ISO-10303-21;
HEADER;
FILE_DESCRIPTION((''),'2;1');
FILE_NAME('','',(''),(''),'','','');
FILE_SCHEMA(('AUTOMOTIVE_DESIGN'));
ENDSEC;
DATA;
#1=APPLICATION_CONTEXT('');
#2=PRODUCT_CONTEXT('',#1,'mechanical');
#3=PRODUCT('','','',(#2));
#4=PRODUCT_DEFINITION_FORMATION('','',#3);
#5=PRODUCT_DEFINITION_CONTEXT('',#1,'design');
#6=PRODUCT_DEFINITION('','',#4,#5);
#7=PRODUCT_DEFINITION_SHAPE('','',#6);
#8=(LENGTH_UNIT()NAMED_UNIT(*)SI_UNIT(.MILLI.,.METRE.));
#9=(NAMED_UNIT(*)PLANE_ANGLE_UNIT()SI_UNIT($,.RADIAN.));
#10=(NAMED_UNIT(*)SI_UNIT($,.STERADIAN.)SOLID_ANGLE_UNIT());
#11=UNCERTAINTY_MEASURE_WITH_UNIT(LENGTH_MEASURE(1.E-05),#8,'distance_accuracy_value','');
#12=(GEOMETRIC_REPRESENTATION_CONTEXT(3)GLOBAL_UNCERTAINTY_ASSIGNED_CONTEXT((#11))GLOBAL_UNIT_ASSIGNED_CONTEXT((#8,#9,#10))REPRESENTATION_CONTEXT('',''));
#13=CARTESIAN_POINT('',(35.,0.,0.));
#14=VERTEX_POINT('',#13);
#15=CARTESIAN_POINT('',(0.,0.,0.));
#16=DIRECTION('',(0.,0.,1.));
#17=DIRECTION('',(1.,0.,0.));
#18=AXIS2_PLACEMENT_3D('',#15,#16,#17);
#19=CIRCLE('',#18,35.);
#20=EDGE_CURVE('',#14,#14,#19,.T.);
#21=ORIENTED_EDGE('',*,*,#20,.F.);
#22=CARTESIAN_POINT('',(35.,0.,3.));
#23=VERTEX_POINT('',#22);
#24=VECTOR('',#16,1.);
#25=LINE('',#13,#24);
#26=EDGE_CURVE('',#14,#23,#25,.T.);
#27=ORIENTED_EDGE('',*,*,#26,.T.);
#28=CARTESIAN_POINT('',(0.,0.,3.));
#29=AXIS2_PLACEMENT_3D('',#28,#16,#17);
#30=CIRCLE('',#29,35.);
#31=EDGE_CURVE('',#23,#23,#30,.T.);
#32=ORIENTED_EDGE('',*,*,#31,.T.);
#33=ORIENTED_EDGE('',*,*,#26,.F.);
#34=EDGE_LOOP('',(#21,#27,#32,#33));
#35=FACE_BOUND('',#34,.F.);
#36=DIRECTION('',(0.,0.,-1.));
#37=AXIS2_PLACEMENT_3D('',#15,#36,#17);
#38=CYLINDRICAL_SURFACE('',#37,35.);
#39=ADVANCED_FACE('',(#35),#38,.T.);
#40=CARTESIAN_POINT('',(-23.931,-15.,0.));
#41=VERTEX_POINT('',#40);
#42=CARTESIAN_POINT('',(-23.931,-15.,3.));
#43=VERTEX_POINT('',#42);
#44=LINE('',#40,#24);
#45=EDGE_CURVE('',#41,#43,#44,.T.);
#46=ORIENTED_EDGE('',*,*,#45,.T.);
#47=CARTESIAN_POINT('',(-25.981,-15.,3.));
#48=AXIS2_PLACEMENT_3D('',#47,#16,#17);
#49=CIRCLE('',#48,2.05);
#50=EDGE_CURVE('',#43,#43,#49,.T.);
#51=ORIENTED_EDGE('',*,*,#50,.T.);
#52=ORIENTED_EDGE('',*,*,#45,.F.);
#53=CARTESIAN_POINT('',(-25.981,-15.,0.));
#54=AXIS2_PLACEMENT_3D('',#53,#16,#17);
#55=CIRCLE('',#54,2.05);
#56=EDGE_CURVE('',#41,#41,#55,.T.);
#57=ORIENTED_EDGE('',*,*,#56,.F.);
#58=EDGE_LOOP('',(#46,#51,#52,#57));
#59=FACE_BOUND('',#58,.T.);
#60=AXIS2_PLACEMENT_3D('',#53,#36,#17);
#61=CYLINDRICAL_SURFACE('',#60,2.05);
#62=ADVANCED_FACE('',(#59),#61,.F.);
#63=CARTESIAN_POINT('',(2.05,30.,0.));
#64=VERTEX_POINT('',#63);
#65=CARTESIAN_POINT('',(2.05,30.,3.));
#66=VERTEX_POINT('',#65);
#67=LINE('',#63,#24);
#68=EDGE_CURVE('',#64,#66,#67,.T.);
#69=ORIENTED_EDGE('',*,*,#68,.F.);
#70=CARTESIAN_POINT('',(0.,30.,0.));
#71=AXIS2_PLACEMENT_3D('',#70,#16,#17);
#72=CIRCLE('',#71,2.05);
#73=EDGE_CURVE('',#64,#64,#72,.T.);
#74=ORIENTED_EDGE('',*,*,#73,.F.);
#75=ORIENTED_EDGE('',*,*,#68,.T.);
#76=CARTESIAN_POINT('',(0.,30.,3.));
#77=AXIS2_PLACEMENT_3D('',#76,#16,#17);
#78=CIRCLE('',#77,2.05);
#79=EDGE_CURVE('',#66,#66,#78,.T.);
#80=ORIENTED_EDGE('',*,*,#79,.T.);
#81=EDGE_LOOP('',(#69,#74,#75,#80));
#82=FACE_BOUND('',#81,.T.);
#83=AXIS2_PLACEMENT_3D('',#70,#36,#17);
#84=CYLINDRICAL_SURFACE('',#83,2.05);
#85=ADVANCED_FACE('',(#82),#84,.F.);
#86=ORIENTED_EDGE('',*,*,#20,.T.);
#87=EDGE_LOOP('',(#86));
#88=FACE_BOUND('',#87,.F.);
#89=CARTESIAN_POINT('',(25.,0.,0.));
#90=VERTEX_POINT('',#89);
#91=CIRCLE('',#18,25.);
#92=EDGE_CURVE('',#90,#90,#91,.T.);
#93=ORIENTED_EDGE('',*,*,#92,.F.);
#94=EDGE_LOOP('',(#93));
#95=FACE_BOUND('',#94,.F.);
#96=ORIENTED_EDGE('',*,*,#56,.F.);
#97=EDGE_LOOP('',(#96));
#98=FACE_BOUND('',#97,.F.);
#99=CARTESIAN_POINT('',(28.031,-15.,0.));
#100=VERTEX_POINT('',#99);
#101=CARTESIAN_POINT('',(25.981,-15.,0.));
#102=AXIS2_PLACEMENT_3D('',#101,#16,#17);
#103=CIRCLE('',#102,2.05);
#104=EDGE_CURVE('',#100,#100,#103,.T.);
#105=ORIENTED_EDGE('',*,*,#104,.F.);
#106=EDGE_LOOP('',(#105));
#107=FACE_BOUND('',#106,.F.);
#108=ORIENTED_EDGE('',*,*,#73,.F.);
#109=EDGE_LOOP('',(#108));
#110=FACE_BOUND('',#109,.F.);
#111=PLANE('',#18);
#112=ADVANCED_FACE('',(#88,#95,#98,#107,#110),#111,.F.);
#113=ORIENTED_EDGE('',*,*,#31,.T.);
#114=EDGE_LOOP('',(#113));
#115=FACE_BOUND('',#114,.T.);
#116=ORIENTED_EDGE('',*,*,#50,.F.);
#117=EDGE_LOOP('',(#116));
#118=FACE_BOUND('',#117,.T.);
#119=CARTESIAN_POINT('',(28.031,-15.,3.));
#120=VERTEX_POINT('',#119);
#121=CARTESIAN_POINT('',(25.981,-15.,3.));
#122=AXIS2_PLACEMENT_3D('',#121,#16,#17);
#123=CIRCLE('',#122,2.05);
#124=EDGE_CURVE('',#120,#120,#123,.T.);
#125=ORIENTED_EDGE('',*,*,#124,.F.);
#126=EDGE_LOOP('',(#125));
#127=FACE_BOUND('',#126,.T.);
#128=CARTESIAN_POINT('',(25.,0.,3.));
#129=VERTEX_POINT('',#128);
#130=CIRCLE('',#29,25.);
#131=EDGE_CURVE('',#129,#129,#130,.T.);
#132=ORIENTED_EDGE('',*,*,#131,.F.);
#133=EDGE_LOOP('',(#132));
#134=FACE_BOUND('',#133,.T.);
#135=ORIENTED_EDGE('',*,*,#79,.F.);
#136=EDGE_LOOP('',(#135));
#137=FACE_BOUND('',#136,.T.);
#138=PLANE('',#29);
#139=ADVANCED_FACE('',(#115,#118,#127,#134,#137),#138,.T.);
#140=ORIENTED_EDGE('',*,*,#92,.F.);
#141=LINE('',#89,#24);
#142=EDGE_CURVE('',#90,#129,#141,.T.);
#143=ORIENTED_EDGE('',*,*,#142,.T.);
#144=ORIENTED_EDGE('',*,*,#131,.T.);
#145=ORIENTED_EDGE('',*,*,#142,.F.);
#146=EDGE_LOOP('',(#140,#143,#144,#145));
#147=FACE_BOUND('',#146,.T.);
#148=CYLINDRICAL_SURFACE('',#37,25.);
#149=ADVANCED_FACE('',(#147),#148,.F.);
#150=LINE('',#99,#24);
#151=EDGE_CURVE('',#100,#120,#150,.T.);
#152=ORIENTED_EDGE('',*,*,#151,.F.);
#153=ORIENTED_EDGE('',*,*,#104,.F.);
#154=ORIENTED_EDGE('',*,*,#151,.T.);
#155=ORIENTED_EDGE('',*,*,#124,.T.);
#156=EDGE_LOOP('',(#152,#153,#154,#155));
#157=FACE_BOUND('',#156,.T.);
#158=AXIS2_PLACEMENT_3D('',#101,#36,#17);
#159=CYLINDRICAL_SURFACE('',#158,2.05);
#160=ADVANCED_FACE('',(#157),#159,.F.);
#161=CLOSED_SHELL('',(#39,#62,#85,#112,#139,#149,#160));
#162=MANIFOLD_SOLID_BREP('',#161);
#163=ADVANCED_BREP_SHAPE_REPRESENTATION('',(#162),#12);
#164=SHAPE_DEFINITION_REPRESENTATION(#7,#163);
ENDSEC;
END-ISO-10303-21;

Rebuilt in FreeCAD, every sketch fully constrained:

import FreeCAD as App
import Part
import Sketcher

V = App.Vector

doc = App.newDocument("Part")
params = doc.addObject("Spreadsheet::Sheet", "Params")
for row, (alias, value) in enumerate([
    ("sketch1_diameter", "70 mm"),
    ("sketch1_diameter2", "50 mm"),
    ("sketch1_diameter3", "4.1 mm"),
    ("pad1_length", "3 mm"),
], start=1):
    params.set(f"A{row}", alias)
    params.set(f"B{row}", "=" + value)
    params.setAlias(f"B{row}", alias)

body = doc.addObject("PartDesign::Body", "Body")

sketch1 = body.newObject("Sketcher::SketchObject", "Sketch")
sketch1.AttachmentSupport = (doc.getObject("XY_Plane"), [""])
sketch1.MapMode = "FlatFace"
sketch1.addGeometry(Part.Circle(V(0, 0, 0), V(0, 0, 1), 35), False)
sketch1.addGeometry(Part.Circle(V(-25.981, -15, 0), V(0, 0, 1), 2.05), False)
sketch1.addGeometry(Part.Circle(V(25.981, -15, 0), V(0, 0, 1), 2.05), False)
sketch1.addGeometry(Part.Circle(V(0, 0, 0), V(0, 0, 1), 25), False)
sketch1.addGeometry(Part.Circle(V(0, 30, 0), V(0, 0, 1), 2.05), False)
sketch1.addConstraint(Sketcher.Constraint("Coincident", 0, 3, -1, 1))
sketch1.addConstraint(Sketcher.Constraint("Coincident", 3, 3, -1, 1))
sketch1.addConstraint(Sketcher.Constraint("Equal", 1, 2))
sketch1.addConstraint(Sketcher.Constraint("Equal", 2, 4))
sketch1.addConstraint(Sketcher.Constraint("Symmetric", 1, 3, 2, 3, -2))
sketch1.addConstraint(Sketcher.Constraint("PointOnObject", 4, 3, -2))
sketch1.addConstraint(Sketcher.Constraint("Diameter", 0, 70.0))
sketch1.addConstraint(Sketcher.Constraint("Diameter", 3, 50.0))
sketch1.addConstraint(Sketcher.Constraint("Diameter", 1, 4.1))
sketch1.addConstraint(Sketcher.Constraint("DistanceY", 1, 3, -1, 1, 15.0))
sketch1.addConstraint(Sketcher.Constraint("DistanceY", -1, 1, 4, 3, 30.0))
sketch1.addConstraint(Sketcher.Constraint("DistanceX", 1, 3, -1, 1, 25.981))
sketch1.setExpression("Constraints[6]", "Params.sketch1_diameter")
sketch1.setExpression("Constraints[7]", "Params.sketch1_diameter2")
sketch1.setExpression("Constraints[8]", "Params.sketch1_diameter3")
pad1 = body.newObject("PartDesign::Pad", "Pad")
pad1.Profile = sketch1
pad1.setExpression("Length", "Params.pad1_length")

doc.recompute()
